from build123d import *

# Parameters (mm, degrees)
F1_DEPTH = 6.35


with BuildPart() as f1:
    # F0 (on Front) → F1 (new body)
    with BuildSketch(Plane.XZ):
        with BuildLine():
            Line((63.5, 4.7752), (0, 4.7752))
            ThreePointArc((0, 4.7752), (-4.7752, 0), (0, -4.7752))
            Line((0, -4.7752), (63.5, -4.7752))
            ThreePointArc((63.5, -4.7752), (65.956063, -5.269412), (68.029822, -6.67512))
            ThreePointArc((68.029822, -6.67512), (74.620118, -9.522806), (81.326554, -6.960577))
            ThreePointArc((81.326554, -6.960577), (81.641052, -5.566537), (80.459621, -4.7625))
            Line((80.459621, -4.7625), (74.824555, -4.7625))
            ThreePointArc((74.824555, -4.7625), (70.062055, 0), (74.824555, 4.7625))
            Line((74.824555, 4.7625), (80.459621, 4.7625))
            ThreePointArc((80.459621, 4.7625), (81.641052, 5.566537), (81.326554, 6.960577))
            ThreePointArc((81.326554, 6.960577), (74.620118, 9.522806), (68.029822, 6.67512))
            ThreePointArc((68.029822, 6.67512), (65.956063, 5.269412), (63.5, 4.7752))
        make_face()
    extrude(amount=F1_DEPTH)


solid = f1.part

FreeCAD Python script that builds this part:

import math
import FreeCAD as App
import Part
import Sketcher
from FreeCAD import Vector
Q = App.Units.Quantity

doc = App.newDocument("Part")
body = doc.addObject("PartDesign::Body", "Body")

sketch1 = doc.addObject("Sketcher::SketchObject", "Sketch")
body.addObject(sketch1)
sketch1.AttachmentSupport = (doc.XZ_Plane, [""])
sketch1.MapMode = "FlatFace"
sketch1.addGeometry([
    Part.LineSegment(Vector(63.5, 4.8, 0), Vector(0, 4.8, 0)),
    Part.ArcOfCircle(Part.Circle(Vector(0, 0, 0), Vector(0, 0, 1), 4.8), math.radians(90), math.radians(270)),
    Part.LineSegment(Vector(0, -4.8, 0), Vector(63.5, -4.8, 0)),
    Part.ArcOfCircle(Part.Circle(Vector(63.5, -11.1, 0), Vector(0, 0, 1), 6.4), math.radians(44), math.radians(90)),
    Part.ArcOfCircle(Part.Circle(Vector(74.8, 0, 0), Vector(0, 0, 1), 9.5), math.radians(-136), math.radians(-47)),
    Part.ArcOfCircle(Part.Circle(Vector(80.5, -6, 0), Vector(0, 0, 1), 1.3), math.radians(-47), math.radians(90)),
    Part.LineSegment(Vector(80.5, -4.8, 0), Vector(74.8, -4.8, 0)),
    Part.ArcOfCircle(Part.Circle(Vector(74.8, 0, 0), Vector(0, 0, 1), 4.8), math.radians(90), math.radians(270)),
    Part.LineSegment(Vector(74.8, 4.8, 0), Vector(80.5, 4.8, 0)),
    Part.ArcOfCircle(Part.Circle(Vector(80.5, 6, 0), Vector(0, 0, 1), 1.3), math.radians(-90), math.radians(47)),
    Part.ArcOfCircle(Part.Circle(Vector(74.8, 0, 0), Vector(0, 0, 1), 9.5), math.radians(47), math.radians(136)),
    Part.ArcOfCircle(Part.Circle(Vector(63.5, 11.1, 0), Vector(0, 0, 1), 6.4), math.radians(-90), math.radians(-44)),
], False)
sketch1.addConstraint([
    Sketcher.Constraint("Tangent", 0, 2, 1, 1),
    Sketcher.Constraint("Tangent", 1, 2, 2, 1),
    Sketcher.Constraint("Tangent", 2, 2, 3, 2),
    Sketcher.Constraint("Tangent", 3, 1, 4, 1),
    Sketcher.Constraint("Tangent", 4, 2, 5, 1),
    Sketcher.Constraint("Tangent", 5, 2, 6, 1),
    Sketcher.Constraint("Tangent", 6, 2, 7, 2),
    Sketcher.Constraint("Tangent", 7, 1, 8, 1),
    Sketcher.Constraint("Tangent", 8, 2, 9, 1),
    Sketcher.Constraint("Tangent", 9, 2, 10, 1),
    Sketcher.Constraint("Tangent", 10, 2, 11, 2),
    Sketcher.Constraint("Tangent", 11, 1, 0, 1),
    Sketcher.Constraint("Horizontal", 0),
    Sketcher.Constraint("Horizontal", 2),
    Sketcher.Constraint("Horizontal", 6),
    Sketcher.Constraint("Horizontal", 8),
    Sketcher.Constraint("Coincident", 1, 3, -1, 1),
    Sketcher.Constraint("Coincident", 7, 3, 4, 3),
    Sketcher.Constraint("Coincident", 10, 3, 4, 3),
    Sketcher.Constraint("Equal", 5, 9),
    Sketcher.Constraint("Equal", 4, 10),
    Sketcher.Constraint("Equal", 3, 11),
    Sketcher.Constraint("PointOnObject", 4, 3, -1),
    Sketcher.Constraint("Radius", 3, Q("0.25 in")),
    Sketcher.Constraint("Radius", 5, Q("0.05 in")),
    Sketcher.Constraint("DistanceX", 0, 2, 0, 1, Q("2.5 in")),
    Sketcher.Constraint("Radius", 1, Q("0.188 in")),
    Sketcher.Constraint("Radius", 4, Q("0.375 in")),
    Sketcher.Constraint("Radius", 7, Q("0.1875 in")),
])
pad1 = doc.addObject("PartDesign::Pad", "Pad")
body.addObject(pad1)
pad1.Profile = sketch1
pad1.Length = Q("0.25 in")

doc.recompute()
